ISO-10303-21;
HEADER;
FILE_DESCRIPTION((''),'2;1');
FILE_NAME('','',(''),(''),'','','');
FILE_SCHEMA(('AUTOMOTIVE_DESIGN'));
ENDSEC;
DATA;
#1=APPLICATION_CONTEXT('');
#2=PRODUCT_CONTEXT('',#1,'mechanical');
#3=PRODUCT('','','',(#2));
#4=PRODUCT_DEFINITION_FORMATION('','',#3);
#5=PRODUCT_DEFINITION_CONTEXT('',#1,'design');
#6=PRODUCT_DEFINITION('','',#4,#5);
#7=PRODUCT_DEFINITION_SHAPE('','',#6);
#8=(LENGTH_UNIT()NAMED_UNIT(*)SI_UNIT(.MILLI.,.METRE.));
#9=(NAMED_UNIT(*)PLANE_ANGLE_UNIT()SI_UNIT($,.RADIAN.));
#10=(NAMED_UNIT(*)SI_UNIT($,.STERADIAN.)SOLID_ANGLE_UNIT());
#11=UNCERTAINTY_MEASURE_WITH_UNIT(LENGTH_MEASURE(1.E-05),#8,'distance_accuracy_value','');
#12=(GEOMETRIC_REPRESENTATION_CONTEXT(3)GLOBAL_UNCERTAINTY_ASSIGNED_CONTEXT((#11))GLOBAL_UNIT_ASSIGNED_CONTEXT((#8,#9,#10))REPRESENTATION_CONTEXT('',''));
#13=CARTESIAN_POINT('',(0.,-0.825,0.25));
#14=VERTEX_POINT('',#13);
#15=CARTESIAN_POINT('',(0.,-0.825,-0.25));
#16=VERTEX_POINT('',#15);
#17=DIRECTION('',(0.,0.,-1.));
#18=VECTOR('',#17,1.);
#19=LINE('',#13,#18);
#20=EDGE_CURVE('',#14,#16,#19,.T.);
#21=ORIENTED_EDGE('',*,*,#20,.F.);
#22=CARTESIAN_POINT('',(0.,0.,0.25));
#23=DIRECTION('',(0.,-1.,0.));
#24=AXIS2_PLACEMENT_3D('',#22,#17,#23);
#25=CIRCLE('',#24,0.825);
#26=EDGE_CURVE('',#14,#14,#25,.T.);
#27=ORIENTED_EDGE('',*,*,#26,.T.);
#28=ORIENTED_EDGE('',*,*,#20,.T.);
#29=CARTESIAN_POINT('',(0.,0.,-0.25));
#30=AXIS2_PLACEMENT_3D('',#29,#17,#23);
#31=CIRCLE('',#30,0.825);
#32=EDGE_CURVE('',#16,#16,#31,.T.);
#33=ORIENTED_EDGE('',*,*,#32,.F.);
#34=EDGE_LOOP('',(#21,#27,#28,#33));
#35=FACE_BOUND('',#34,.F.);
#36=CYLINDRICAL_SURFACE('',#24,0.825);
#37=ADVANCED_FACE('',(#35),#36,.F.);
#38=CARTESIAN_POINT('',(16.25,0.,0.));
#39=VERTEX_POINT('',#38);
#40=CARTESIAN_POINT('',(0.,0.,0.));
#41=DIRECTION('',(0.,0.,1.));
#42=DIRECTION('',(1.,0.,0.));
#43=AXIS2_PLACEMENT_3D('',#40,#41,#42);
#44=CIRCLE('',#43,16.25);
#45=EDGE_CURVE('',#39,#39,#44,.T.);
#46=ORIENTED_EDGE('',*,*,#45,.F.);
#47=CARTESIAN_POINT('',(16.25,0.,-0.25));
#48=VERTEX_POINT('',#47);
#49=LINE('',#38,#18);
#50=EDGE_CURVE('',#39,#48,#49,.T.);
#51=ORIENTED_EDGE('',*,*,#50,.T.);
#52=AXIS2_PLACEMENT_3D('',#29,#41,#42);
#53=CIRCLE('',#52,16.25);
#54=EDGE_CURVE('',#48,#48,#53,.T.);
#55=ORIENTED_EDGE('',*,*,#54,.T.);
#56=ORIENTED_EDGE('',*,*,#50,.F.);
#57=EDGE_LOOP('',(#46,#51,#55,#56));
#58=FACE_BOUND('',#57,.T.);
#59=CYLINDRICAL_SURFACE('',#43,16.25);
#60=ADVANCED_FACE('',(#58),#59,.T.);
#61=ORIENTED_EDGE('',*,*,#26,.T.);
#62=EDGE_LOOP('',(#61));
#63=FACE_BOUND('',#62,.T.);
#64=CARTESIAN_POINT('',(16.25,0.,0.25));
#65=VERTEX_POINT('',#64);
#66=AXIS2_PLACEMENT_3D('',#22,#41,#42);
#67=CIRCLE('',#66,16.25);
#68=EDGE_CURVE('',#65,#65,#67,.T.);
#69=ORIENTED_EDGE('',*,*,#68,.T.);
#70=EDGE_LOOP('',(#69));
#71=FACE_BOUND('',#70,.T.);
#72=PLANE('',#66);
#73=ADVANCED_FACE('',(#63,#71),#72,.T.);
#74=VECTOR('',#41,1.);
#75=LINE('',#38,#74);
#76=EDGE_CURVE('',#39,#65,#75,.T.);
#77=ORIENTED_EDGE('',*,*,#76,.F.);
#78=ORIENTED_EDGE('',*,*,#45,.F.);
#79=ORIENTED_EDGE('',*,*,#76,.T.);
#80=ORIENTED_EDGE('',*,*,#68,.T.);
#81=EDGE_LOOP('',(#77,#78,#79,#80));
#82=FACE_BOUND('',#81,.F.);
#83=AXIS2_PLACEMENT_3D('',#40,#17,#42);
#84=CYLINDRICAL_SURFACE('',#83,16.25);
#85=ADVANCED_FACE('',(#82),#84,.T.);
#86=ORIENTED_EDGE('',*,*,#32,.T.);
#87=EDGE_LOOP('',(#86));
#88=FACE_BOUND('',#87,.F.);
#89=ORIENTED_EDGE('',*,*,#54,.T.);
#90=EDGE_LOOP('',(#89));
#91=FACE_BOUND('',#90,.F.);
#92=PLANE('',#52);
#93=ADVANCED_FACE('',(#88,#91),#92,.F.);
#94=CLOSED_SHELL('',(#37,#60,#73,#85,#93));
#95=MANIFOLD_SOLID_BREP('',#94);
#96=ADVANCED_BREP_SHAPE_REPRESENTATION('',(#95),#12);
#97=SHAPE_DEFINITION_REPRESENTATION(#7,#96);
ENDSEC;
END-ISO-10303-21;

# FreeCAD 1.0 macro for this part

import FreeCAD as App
import Part
import Sketcher

doc = App.newDocument("Part")
params = doc.addObject("Spreadsheet::Sheet", "Params")
for row, (alias, value) in enumerate([
    ("sketch1_diameter", "32.5 mm"),
    ("pad1_length", "0.5 mm"),
    ("sketch2_diameter", "1.65 mm"),
    ("hole_diameter", "1.65 mm"),
    ("hole_depth", "0.5 mm"),
], start=1):
    params.set(f"A{row}", alias)
    params.set(f"B{row}", "=" + value)
    params.setAlias(f"B{row}", alias)

body = doc.addObject("PartDesign::Body", "Body")

sketch1 = doc.addObject("Sketcher::SketchObject", "Sketch")
body.addObject(sketch1)
sketch1.AttachmentSupport = (doc.XY_Plane, [""])
sketch1.MapMode = "FlatFace"
sketch1.addGeometry(Part.Circle(App.Vector(0, 0, 0), App.Vector(0, 0, 1), 16), False)
sketch1.addConstraint([
    Sketcher.Constraint("Coincident", 0, 3, -1, 1),
    Sketcher.Constraint("Diameter", 0, 32.5),
])
sketch1.setExpression("Constraints[1]", "Params.sketch1_diameter")
pad1 = doc.addObject("PartDesign::Pad", "Pad")
body.addObject(pad1)
pad1.Profile = sketch1
pad1.setExpression("Length", "Params.pad1_length")
pad1.Midplane = True

sketch2 = doc.addObject("Sketcher::SketchObject", "Sketch001")
body.addObject(sketch2)
sketch2.AttachmentSupport = (doc.XY_Plane, [""])
sketch2.MapMode = "FlatFace"
sketch2.AttachmentOffset = App.Placement(App.Vector(0, 0, 0.25), App.Rotation())
sketch2.addGeometry(Part.Circle(App.Vector(0, 0, 0), App.Vector(0, 0, 1), 0.8), False)
sketch2.addConstraint([
    Sketcher.Constraint("Coincident", 0, 3, -1, 1),
    Sketcher.Constraint("Diameter", 0, 1.65),
])
sketch2.setExpression("Constraints[1]", "Params.sketch2_diameter")
doc.recompute()
hole = doc.addObject("PartDesign::Hole", "Hole")
body.addObject(hole)
hole.Profile = sketch2
hole.ThreadType = "None"
hole.setExpression("Diameter", "Params.hole_diameter")
hole.DepthType = "Dimension"
hole.setExpression("Depth", "Params.hole_depth")
hole.DrillPoint = "Flat"

doc.recompute()
